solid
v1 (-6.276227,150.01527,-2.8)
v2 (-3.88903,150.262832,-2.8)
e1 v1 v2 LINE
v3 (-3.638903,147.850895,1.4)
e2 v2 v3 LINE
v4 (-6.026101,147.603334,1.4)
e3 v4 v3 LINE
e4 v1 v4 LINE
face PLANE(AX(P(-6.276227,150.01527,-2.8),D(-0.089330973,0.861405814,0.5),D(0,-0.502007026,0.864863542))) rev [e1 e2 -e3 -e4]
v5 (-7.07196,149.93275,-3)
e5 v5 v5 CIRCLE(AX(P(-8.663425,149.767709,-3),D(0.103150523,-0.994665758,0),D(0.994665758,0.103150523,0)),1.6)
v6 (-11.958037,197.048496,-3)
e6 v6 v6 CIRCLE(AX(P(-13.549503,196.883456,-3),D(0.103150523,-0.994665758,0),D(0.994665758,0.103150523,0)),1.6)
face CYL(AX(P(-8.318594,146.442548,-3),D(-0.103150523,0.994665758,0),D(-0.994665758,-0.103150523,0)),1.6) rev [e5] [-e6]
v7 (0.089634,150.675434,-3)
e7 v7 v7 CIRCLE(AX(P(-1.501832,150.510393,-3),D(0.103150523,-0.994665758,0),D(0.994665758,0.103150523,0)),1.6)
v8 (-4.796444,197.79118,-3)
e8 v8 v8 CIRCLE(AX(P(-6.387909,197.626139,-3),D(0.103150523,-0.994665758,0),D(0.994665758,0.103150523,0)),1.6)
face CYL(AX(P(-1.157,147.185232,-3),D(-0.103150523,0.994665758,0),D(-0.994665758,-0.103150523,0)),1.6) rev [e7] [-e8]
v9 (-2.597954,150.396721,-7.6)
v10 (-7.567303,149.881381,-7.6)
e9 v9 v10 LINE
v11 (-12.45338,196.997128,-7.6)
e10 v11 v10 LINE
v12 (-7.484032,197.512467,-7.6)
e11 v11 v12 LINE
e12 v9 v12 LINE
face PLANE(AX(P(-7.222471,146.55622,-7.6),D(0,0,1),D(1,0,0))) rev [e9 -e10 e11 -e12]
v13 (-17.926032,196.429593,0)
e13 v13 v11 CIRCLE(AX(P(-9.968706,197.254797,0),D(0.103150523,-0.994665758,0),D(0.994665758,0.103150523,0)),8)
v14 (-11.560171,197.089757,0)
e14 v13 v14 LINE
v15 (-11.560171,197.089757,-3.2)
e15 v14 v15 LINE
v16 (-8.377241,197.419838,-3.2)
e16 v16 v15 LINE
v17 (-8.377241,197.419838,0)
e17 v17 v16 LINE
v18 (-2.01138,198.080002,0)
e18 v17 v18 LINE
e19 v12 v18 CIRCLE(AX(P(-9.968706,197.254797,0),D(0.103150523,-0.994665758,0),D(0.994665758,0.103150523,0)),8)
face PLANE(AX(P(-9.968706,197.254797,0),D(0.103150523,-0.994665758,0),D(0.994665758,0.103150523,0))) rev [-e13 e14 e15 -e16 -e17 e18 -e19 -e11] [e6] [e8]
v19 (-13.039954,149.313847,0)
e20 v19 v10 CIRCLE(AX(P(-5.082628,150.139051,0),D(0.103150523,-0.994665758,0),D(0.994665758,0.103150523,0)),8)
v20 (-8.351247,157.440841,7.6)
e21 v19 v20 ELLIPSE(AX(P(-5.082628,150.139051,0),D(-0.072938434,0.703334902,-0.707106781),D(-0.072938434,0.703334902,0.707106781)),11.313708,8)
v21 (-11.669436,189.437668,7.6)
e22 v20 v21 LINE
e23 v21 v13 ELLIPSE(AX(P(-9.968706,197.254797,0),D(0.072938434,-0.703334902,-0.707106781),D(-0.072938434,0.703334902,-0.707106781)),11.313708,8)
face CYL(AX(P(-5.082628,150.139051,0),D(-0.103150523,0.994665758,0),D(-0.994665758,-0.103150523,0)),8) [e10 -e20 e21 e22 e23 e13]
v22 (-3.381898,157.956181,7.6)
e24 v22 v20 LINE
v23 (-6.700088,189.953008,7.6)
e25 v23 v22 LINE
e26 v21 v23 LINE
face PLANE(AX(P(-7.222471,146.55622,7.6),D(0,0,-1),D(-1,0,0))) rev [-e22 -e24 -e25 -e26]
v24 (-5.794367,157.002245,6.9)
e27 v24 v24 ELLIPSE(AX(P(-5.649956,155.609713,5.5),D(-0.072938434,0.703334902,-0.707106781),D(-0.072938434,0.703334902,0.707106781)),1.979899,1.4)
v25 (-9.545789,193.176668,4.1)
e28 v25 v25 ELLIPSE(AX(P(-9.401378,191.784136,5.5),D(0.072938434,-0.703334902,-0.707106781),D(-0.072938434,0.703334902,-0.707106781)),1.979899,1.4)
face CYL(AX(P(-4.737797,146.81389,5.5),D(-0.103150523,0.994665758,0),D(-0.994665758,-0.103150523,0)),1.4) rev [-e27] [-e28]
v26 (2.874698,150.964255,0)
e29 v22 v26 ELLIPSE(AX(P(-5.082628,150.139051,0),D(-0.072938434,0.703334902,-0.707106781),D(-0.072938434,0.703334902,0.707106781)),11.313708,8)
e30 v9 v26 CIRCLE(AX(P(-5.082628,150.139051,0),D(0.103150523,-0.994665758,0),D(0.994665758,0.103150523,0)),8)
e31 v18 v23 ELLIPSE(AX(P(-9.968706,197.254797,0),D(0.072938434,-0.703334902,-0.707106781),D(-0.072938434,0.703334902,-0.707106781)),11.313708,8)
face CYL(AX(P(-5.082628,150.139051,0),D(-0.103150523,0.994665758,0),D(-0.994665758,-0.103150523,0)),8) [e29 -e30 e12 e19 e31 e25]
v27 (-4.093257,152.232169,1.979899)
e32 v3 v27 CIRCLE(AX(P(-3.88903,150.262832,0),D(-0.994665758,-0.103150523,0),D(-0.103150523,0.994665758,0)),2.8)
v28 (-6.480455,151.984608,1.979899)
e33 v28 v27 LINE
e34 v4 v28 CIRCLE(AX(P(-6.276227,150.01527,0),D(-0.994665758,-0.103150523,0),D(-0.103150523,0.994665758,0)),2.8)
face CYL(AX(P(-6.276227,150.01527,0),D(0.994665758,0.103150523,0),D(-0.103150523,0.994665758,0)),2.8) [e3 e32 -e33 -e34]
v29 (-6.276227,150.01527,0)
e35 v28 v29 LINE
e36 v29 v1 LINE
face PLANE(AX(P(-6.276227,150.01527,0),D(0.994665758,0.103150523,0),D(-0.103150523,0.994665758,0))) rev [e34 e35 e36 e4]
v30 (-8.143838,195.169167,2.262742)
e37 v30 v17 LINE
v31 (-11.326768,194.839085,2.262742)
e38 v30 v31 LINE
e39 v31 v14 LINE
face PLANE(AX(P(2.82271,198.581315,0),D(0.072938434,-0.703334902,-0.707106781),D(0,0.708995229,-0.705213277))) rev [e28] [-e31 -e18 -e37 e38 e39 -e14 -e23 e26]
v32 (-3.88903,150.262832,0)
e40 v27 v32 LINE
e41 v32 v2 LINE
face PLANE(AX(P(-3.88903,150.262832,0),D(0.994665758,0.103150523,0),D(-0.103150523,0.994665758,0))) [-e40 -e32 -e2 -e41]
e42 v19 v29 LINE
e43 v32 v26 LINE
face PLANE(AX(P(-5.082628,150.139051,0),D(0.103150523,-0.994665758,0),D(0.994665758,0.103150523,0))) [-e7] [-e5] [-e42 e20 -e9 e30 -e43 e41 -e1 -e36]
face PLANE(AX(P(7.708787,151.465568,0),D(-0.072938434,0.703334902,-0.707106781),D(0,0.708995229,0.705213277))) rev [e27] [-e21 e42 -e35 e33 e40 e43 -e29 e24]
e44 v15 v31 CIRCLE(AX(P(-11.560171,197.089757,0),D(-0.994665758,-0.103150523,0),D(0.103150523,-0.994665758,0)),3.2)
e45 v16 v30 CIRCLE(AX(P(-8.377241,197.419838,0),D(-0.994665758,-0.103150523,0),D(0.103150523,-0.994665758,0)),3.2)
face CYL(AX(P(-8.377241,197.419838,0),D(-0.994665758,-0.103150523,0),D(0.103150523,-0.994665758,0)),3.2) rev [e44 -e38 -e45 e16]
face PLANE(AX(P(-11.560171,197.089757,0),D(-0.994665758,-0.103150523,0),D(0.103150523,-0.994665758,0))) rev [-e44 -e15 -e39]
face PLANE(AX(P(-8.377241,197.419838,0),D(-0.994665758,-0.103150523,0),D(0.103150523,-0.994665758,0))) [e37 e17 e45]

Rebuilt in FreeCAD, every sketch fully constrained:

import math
import FreeCAD as App
import Part
import Sketcher
Q = App.Units.Quantity

doc = App.newDocument("Part")
body = doc.addObject("PartDesign::Body", "Body")

sketch1 = body.newObject("Sketcher::SketchObject", "Sketch")
sketch1.Placement = App.Placement(App.Vector(-20.344467, 196.178793, 0), App.Rotation(App.Vector(-0.994665758, -0.103150523, 0), App.Vector(0, 0, -1.000000001), App.Vector(0.103150523, -0.994665758, 0), "ZXY"))
sketch1.addGeometry(Part.Circle(App.Vector(-10, 0, 0), App.Vector(0, 0, 1), 8), False)
sketch1.addConstraint(Sketcher.Constraint("PointOnObject", 0, 3, -1))
sketch1.addConstraint(Sketcher.Constraint("Diameter", 0, 16.0))
sketch1.addConstraint(Sketcher.Constraint("DistanceX", 0, 3, -1, 1, 10.431405))
pad1 = body.newObject("PartDesign::Pad", "Pad")
pad1.Profile = sketch1
pad1.Length = 47.368421

sketch2 = body.newObject("Sketcher::SketchObject", "Sketch001")
sketch2.Placement = App.Placement(App.Vector(10.375762, 1.076005, 0), App.Rotation(App.Vector(0.103150523, -0.994665758, 0), App.Vector(0, 0, 1.000000001), App.Vector(-0.994665758, -0.103150523, 0), "ZXY"))
sketch2.addGeometry(Part.LineSegment(App.Vector(-197, 0, 0), App.Vector(-189, 8, 0)), False)
sketch2.addGeometry(Part.LineSegment(App.Vector(-189, 8, 0), App.Vector(-197, 8, 0)), False)
sketch2.addGeometry(Part.LineSegment(App.Vector(-197, 8, 0), App.Vector(-197, 0, 0)), False)
sketch2.addGeometry(Part.LineSegment(App.Vector(-150, 8, 0), App.Vector(-158, 8, 0)), False)
sketch2.addGeometry(Part.LineSegment(App.Vector(-158, 8, 0), App.Vector(-150, 0, 0)), False)
sketch2.addGeometry(Part.LineSegment(App.Vector(-150, 0, 0), App.Vector(-150, 8, 0)), False)
sketch2.addConstraint(Sketcher.Constraint("Coincident", 0, 2, 1, 1))
sketch2.addConstraint(Sketcher.Constraint("Coincident", 1, 2, 2, 1))
sketch2.addConstraint(Sketcher.Constraint("Coincident", 2, 2, 0, 1))
sketch2.addConstraint(Sketcher.Constraint("Coincident", 3, 2, 4, 1))
sketch2.addConstraint(Sketcher.Constraint("Coincident", 4, 2, 5, 1))
sketch2.addConstraint(Sketcher.Constraint("Coincident", 5, 2, 3, 1))
sketch2.addConstraint(Sketcher.Constraint("Horizontal", 1))
sketch2.addConstraint(Sketcher.Constraint("Vertical", 2))
sketch2.addConstraint(Sketcher.Constraint("Horizontal", 3))
sketch2.addConstraint(Sketcher.Constraint("Vertical", 5))
sketch2.addConstraint(Sketcher.Constraint("PointOnObject", 2, 2, -1))
sketch2.addConstraint(Sketcher.Constraint("PointOnObject", 4, 2, -1))
sketch2.addConstraint(Sketcher.Constraint("Perpendicular", 0, 4))
sketch2.addConstraint(Sketcher.Constraint("Horizontal", 1, 2, 3, 2))
sketch2.addConstraint(Sketcher.Constraint("Equal", 1, 3))
sketch2.addConstraint(Sketcher.Constraint("DistanceX", 1, 2, 1, 1, 8.0))
sketch2.addConstraint(Sketcher.Constraint("DistanceX", 0, 2, -1, 1, 189.23087))
sketch2.addConstraint(Sketcher.Constraint("DistanceX", 3, 2, -1, 1, 157.862449))
pocket1 = body.newObject("PartDesign::Pocket", "Pocket")
pocket1.Profile = sketch2
pocket1.Type = "ThroughAll"
pocket1.Midplane = True

sketch3 = body.newObject("Sketcher::SketchObject", "Sketch002")
sketch3.Placement = App.Placement(App.Vector(10.375762, 1.076005, 0), App.Rotation(App.Vector(0.103150523, -0.994665758, 0), App.Vector(0, 0, 1.000000001), App.Vector(-0.994665758, -0.103150523, 0), "ZXY"))
sketch3.addGeometry(Part.LineSegment(App.Vector(-149.9, -2.8, 0), App.Vector(-147.4, 1.4, 0)), False)
sketch3.addGeometry(Part.ArcOfCircle(Part.Circle(App.Vector(-149.9, 0, 0), App.Vector(0, 0, 1), 2.8), math.radians(30), math.radians(135)), False)
sketch3.addGeometry(Part.LineSegment(App.Vector(-151.8, 2, 0), App.Vector(-149.9, 0, 0)), False)
sketch3.addGeometry(Part.LineSegment(App.Vector(-149.9, 0, 0), App.Vector(-149.9, -2.8, 0)), False)
sketch3.addConstraint(Sketcher.Constraint("Coincident", 0, 2, 1, 1))
sketch3.addConstraint(Sketcher.Constraint("Coincident", 1, 2, 2, 1))
sketch3.addConstraint(Sketcher.Constraint("Coincident", 2, 2, 3, 1))
sketch3.addConstraint(Sketcher.Constraint("Coincident", 3, 2, 0, 1))
sketch3.addConstraint(Sketcher.Constraint("Vertical", 3))
sketch3.addConstraint(Sketcher.Constraint("Coincident", 2, 2, 1, 3))
sketch3.addConstraint(Sketcher.Constraint("PointOnObject", 1, 3, -1))
sketch3.addConstraint(Sketcher.Constraint("Radius", 1, 2.8))
sketch3.addConstraint(Sketcher.Constraint("Angle", 0, Q("60 deg")))
sketch3.addConstraint(Sketcher.Constraint("Angle", 2, Q("-45 deg")))
sketch3.addConstraint(Sketcher.Constraint("DistanceY", 3, 2, 3, 1, 2.8))
sketch3.addConstraint(Sketcher.Constraint("DistanceX", 1, 3, -1, 1, 149.862449))
pad2 = body.newObject("PartDesign::Pad", "Pad001")
pad2.Profile = sketch3
pad2.Length = 2.4
pad2.Midplane = True

sketch4 = body.newObject("Sketcher::SketchObject", "Sketch003")
sketch4.Placement = App.Placement(App.Vector(10.375762, 1.076005, 0), App.Rotation(App.Vector(0.103150523, -0.994665758, 0), App.Vector(0, 0, 1.000000001), App.Vector(-0.994665758, -0.103150523, 0), "ZXY"))
sketch4.addGeometry(Part.LineSegment(App.Vector(-195, 2.3, 0), App.Vector(-197.2, 0, 0)), False)
sketch4.addGeometry(Part.LineSegment(App.Vector(-197.2, 0, 0), App.Vector(-197.2, -3.2, 0)), False)
sketch4.addGeometry(Part.ArcOfCircle(Part.Circle(App.Vector(-197.2, 0, 0), App.Vector(0, 0, 1), 3.2), math.radians(-90), math.radians(45)), False)
sketch4.addConstraint(Sketcher.Constraint("Coincident", 0, 2, 1, 1))
sketch4.addConstraint(Sketcher.Constraint("Coincident", 1, 2, 2, 1))
sketch4.addConstraint(Sketcher.Constraint("Coincident", 2, 2, 0, 1))
sketch4.addConstraint(Sketcher.Constraint("Vertical", 1))
sketch4.addConstraint(Sketcher.Constraint("Coincident", 0, 2, 2, 3))
sketch4.addConstraint(Sketcher.Constraint("PointOnObject", 2, 3, -1))
sketch4.addConstraint(Sketcher.Constraint("Radius", 2, 3.2))
sketch4.addConstraint(Sketcher.Constraint("Angle", 0, Q("-135 deg")))
sketch4.addConstraint(Sketcher.Constraint("DistanceX", 2, 3, -1, 1, 197.23087))
pocket2 = body.newObject("PartDesign::Pocket", "Pocket001")
pocket2.Profile = sketch4
pocket2.Length = 3.2
pocket2.Midplane = True

sketch5 = body.newObject("Sketcher::SketchObject", "Sketch004")
sketch5.Placement = App.Placement(App.Vector(-20.344467, 196.178793, 0), App.Rotation(App.Vector(0.994665758, 0.103150523, 0), App.Vector(0, 0, -1.000000001), App.Vector(-0.103150523, 0.994665758, 0), "ZXY"))
sketch5.addGeometry(Part.Circle(App.Vector(10.4, -5.5, 0), App.Vector(0, 0, 1), 1.4), False)
sketch5.addGeometry(Part.Circle(App.Vector(6.8, 3, 0), App.Vector(0, 0, 1), 1.6), False)
sketch5.addGeometry(Part.Circle(App.Vector(14, 3, 0), App.Vector(0, 0, 1), 1.6), False)
sketch5.addConstraint(Sketcher.Constraint("Equal", 1, 2))
sketch5.addConstraint(Sketcher.Constraint("Horizontal", 1, 3, 2, 3))
sketch5.addConstraint(Sketcher.Constraint("Diameter", 0, 2.8))
sketch5.addConstraint(Sketcher.Constraint("Diameter", 1, 3.2))
sketch5.addConstraint(Sketcher.Constraint("DistanceY", -1, 1, 1, 3, 3.0))
sketch5.addConstraint(Sketcher.Constraint("DistanceY", 0, 3, -1, 1, 5.5))
sketch5.addConstraint(Sketcher.Constraint("DistanceX", 1, 3, 0, 3, 3.6))
sketch5.addConstraint(Sketcher.Constraint("DistanceX", 1, 3, 2, 3, 7.2))
sketch5.addConstraint(Sketcher.Constraint("DistanceX", -1, 1, 0, 3, 10.431405))
pocket3 = body.newObject("PartDesign::Pocket", "Pocket002")
pocket3.Profile = sketch5
pocket3.Type = "ThroughAll"
pocket3.Midplane = True

sketch6 = body.newObject("Sketcher::SketchObject", "Sketch005")
sketch6.Placement = App.Placement(App.Vector(-20.344467, 196.178793, 0), App.Rotation(App.Vector(0.994665758, 0.103150523, 0), App.Vector(0, 0, -1.000000001), App.Vector(-0.103150523, 0.994665758, 0), "ZXY"))
sketch6.addGeometry(Part.LineSegment(App.Vector(7.9, 7.6, 0), App.Vector(12.9, 7.6, 0)), False)
sketch6.addGeometry(Part.ArcOfCircle(Part.Circle(App.Vector(10.4, 0, 0), App.Vector(0, 0, 1), 8), math.radians(72), math.radians(108)), False)
sketch6.addGeometry(Part.LineSegment(App.Vector(12.9, -7.6, 0), App.Vector(7.9, -7.6, 0)), False)
sketch6.addGeometry(Part.ArcOfCircle(Part.Circle(App.Vector(10.4, 0, 0), App.Vector(0, 0, 1), 8), math.radians(-108), math.radians(-72)), False)
sketch6.addConstraint(Sketcher.Constraint("Coincident", 0, 1, 1, 2))
sketch6.addConstraint(Sketcher.Constraint("Coincident", 1, 1, 0, 2))
sketch6.addConstraint(Sketcher.Constraint("Coincident", 2, 1, 3, 2))
sketch6.addConstraint(Sketcher.Constraint("Coincident", 3, 1, 2, 2))
sketch6.addConstraint(Sketcher.Constraint("Horizontal", 0))
sketch6.addConstraint(Sketcher.Constraint("Horizontal", 2))
sketch6.addConstraint(Sketcher.Constraint("Coincident", 3, 3, 1, 3))
sketch6.addConstraint(Sketcher.Constraint("Equal", 1, 3))
sketch6.addConstraint(Sketcher.Constraint("Symmetric", 1, 1, 2, 1, -1))
sketch6.addConstraint(Sketcher.Constraint("Radius", 1, 8.0))
sketch6.addConstraint(Sketcher.Constraint("DistanceY", -1, 1, 0, 1, 7.6))
sketch6.addConstraint(Sketcher.Constraint("DistanceX", -1, 1, 1, 3, 10.431405))
pocket4 = body.newObject("PartDesign::Pocket", "Pocket003")
pocket4.Profile = sketch6
pocket4.Type = "ThroughAll"

doc.recompute()
